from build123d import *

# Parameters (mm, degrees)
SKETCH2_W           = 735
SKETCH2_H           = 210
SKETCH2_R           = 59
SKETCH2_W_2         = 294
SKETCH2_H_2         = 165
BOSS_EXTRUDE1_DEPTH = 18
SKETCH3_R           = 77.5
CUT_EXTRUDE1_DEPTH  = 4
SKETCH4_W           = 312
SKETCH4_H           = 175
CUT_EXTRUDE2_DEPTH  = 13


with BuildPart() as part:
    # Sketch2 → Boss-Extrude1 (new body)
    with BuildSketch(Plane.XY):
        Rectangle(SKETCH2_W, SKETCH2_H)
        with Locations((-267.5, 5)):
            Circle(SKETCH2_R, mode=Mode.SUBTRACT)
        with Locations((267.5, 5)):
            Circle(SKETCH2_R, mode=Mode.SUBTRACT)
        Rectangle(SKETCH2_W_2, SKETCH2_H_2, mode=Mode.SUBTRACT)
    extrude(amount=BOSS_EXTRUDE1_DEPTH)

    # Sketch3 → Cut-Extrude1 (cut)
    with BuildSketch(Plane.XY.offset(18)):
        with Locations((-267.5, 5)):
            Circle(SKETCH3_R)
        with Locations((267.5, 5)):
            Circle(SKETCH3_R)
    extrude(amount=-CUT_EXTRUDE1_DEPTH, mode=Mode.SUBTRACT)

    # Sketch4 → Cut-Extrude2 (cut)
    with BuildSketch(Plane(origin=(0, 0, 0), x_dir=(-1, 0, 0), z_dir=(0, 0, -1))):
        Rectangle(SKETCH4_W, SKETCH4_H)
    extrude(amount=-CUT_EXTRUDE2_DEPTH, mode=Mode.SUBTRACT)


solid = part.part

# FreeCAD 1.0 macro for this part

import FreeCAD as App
import Part
import Sketcher
from FreeCAD import Vector
Q = App.Units.Quantity

doc = App.newDocument("Part")
params = doc.addObject("Spreadsheet::Sheet", "Params")
for row, (alias, value) in enumerate([
    ("sketch1_diameter", "118 mm"),
    ("sketch1_width", "735 mm"),
    ("sketch1_width2", "294 mm"),
    ("sketch1_height", "210 mm"),
    ("sketch1_height2", "165 mm"),
    ("pad1_length", "18 mm"),
    ("sketch2_diameter", "155 mm"),
    ("pocket1_length", "4 mm"),
    ("sketch3_width", "312 mm"),
    ("sketch3_height", "175 mm"),
    ("pocket2_length", "13 mm"),
], start=1):
    params.set(f"A{row}", alias)
    params.set(f"B{row}", "=" + value)
    params.setAlias(f"B{row}", alias)

body = doc.addObject("PartDesign::Body", "Body")

sketch1 = body.newObject("Sketcher::SketchObject", "Sketch")
sketch1.AttachmentSupport = (doc.getObject("XY_Plane"), [""])
sketch1.MapMode = "FlatFace"
sketch1.addGeometry(Part.LineSegment(Vector(-368, 105, 0), Vector(-368, -105, 0)), False)
sketch1.addGeometry(Part.LineSegment(Vector(-368, -105, 0), Vector(368, -105, 0)), False)
sketch1.addGeometry(Part.LineSegment(Vector(368, -105, 0), Vector(368, 105, 0)), False)
sketch1.addGeometry(Part.LineSegment(Vector(368, 105, 0), Vector(-368, 105, 0)), False)
sketch1.addGeometry(Part.Circle(Vector(-268, 5, 0), Vector(0, 0, 1), 59), False)
sketch1.addGeometry(Part.LineSegment(Vector(147, -82, 0), Vector(-147, -82, 0)), False)
sketch1.addGeometry(Part.LineSegment(Vector(-147, -82, 0), Vector(-147, 82, 0)), False)
sketch1.addGeometry(Part.LineSegment(Vector(-147, 82, 0), Vector(147, 82, 0)), False)
sketch1.addGeometry(Part.LineSegment(Vector(147, 82, 0), Vector(147, -82, 0)), False)
sketch1.addGeometry(Part.Circle(Vector(268, 5, 0), Vector(0, 0, 1), 59), False)
sketch1.addConstraint(Sketcher.Constraint("Coincident", 0, 2, 1, 1))
sketch1.addConstraint(Sketcher.Constraint("Coincident", 1, 2, 2, 1))
sketch1.addConstraint(Sketcher.Constraint("Coincident", 2, 2, 3, 1))
sketch1.addConstraint(Sketcher.Constraint("Coincident", 3, 2, 0, 1))
sketch1.addConstraint(Sketcher.Constraint("Coincident", 5, 2, 6, 1))
sketch1.addConstraint(Sketcher.Constraint("Coincident", 6, 2, 7, 1))
sketch1.addConstraint(Sketcher.Constraint("Coincident", 7, 2, 8, 1))
sketch1.addConstraint(Sketcher.Constraint("Coincident", 8, 2, 5, 1))
sketch1.addConstraint(Sketcher.Constraint("Vertical", 0))
sketch1.addConstraint(Sketcher.Constraint("Horizontal", 1))
sketch1.addConstraint(Sketcher.Constraint("Vertical", 2))
sketch1.addConstraint(Sketcher.Constraint("Horizontal", 3))
sketch1.addConstraint(Sketcher.Constraint("Horizontal", 5))
sketch1.addConstraint(Sketcher.Constraint("Vertical", 6))
sketch1.addConstraint(Sketcher.Constraint("Horizontal", 7))
sketch1.addConstraint(Sketcher.Constraint("Vertical", 8))
sketch1.addConstraint(Sketcher.Constraint("Equal", 4, 9))
sketch1.addConstraint(Sketcher.Constraint("Symmetric", 0, 2, 2, 2, -1, 1))
sketch1.addConstraint(Sketcher.Constraint("Symmetric", 5, 2, 7, 2, -1, 1))
sketch1.addConstraint(Sketcher.Constraint("Symmetric", 4, 3, 9, 3, -2))
sketch1.addConstraint(Sketcher.Constraint("Diameter", 4, Q("118 mm")))
sketch1.addConstraint(Sketcher.Constraint("DistanceX", 1, 1, 1, 2, Q("735 mm")))
sketch1.addConstraint(Sketcher.Constraint("DistanceX", 5, 2, 5, 1, Q("294 mm")))
sketch1.addConstraint(Sketcher.Constraint("DistanceY", 0, 2, 0, 1, Q("210 mm")))
sketch1.addConstraint(Sketcher.Constraint("DistanceY", 6, 1, 6, 2, Q("165 mm")))
sketch1.addConstraint(Sketcher.Constraint("DistanceY", -1, 1, 4, 3, Q("5 mm")))
sketch1.addConstraint(Sketcher.Constraint("DistanceX", 4, 3, 9, 3, Q("535 mm")))
sketch1.setExpression("Constraints[20]", "Params.sketch1_diameter")
sketch1.setExpression("Constraints[21]", "Params.sketch1_width")
sketch1.setExpression("Constraints[22]", "Params.sketch1_width2")
sketch1.setExpression("Constraints[23]", "Params.sketch1_height")
sketch1.setExpression("Constraints[24]", "Params.sketch1_height2")
pad1 = body.newObject("PartDesign::Pad", "Pad")
pad1.Profile = sketch1
pad1.setExpression("Length", "Params.pad1_length")

sketch2 = body.newObject("Sketcher::SketchObject", "Sketch001")
sketch2.AttachmentSupport = (doc.getObject("XY_Plane"), [""])
sketch2.MapMode = "FlatFace"
sketch2.AttachmentOffset = App.Placement(Vector(0, 0, 18), App.Rotation())
sketch2.addGeometry(Part.Circle(Vector(-268, 5, 0), Vector(0, 0, 1), 78), False)
sketch2.addGeometry(Part.Circle(Vector(268, 5, 0), Vector(0, 0, 1), 78), False)
sketch2.addConstraint(Sketcher.Constraint("Equal", 0, 1))
sketch2.addConstraint(Sketcher.Constraint("Symmetric", 0, 3, 1, 3, -2))
sketch2.addConstraint(Sketcher.Constraint("Diameter", 0, Q("155 mm")))
sketch2.addConstraint(Sketcher.Constraint("DistanceY", -1, 1, 0, 3, Q("5 mm")))
sketch2.addConstraint(Sketcher.Constraint("DistanceX", 0, 3, 1, 3, Q("535 mm")))
sketch2.setExpression("Constraints[2]", "Params.sketch2_diameter")
pocket1 = body.newObject("PartDesign::Pocket", "Pocket")
pocket1.Profile = sketch2
pocket1.setExpression("Length", "Params.pocket1_length")

sketch3 = body.newObject("Sketcher::SketchObject", "Sketch002")
sketch3.AttachmentSupport = (doc.getObject("XY_Plane"), [""])
sketch3.MapMode = "FlatFace"
sketch3.addGeometry(Part.LineSegment(Vector(156, 88, 0), Vector(156, -88, 0)), False)
sketch3.addGeometry(Part.LineSegment(Vector(156, -88, 0), Vector(-156, -88, 0)), False)
sketch3.addGeometry(Part.LineSegment(Vector(-156, -88, 0), Vector(-156, 88, 0)), False)
sketch3.addGeometry(Part.LineSegment(Vector(-156, 88, 0), Vector(156, 88, 0)), False)
sketch3.addConstraint(Sketcher.Constraint("Coincident", 0, 2, 1, 1))
sketch3.addConstraint(Sketcher.Constraint("Coincident", 1, 2, 2, 1))
sketch3.addConstraint(Sketcher.Constraint("Coincident", 2, 2, 3, 1))
sketch3.addConstraint(Sketcher.Constraint("Coincident", 3, 2, 0, 1))
sketch3.addConstraint(Sketcher.Constraint("Vertical", 0))
sketch3.addConstraint(Sketcher.Constraint("Horizontal", 1))
sketch3.addConstraint(Sketcher.Constraint("Vertical", 2))
sketch3.addConstraint(Sketcher.Constraint("Horizontal", 3))
sketch3.addConstraint(Sketcher.Constraint("Symmetric", 0, 2, 2, 2, -1, 1))
sketch3.addConstraint(Sketcher.Constraint("DistanceX", 1, 2, 1, 1, Q("312 mm")))
sketch3.addConstraint(Sketcher.Constraint("DistanceY", 0, 2, 0, 1, Q("175 mm")))
sketch3.setExpression("Constraints[9]", "Params.sketch3_width")
sketch3.setExpression("Constraints[10]", "Params.sketch3_height")
pocket2 = body.newObject("PartDesign::Pocket", "Pocket001")
pocket2.Profile = sketch3
pocket2.setExpression("Length", "Params.pocket2_length")
pocket2.Reversed = True

doc.recompute()
